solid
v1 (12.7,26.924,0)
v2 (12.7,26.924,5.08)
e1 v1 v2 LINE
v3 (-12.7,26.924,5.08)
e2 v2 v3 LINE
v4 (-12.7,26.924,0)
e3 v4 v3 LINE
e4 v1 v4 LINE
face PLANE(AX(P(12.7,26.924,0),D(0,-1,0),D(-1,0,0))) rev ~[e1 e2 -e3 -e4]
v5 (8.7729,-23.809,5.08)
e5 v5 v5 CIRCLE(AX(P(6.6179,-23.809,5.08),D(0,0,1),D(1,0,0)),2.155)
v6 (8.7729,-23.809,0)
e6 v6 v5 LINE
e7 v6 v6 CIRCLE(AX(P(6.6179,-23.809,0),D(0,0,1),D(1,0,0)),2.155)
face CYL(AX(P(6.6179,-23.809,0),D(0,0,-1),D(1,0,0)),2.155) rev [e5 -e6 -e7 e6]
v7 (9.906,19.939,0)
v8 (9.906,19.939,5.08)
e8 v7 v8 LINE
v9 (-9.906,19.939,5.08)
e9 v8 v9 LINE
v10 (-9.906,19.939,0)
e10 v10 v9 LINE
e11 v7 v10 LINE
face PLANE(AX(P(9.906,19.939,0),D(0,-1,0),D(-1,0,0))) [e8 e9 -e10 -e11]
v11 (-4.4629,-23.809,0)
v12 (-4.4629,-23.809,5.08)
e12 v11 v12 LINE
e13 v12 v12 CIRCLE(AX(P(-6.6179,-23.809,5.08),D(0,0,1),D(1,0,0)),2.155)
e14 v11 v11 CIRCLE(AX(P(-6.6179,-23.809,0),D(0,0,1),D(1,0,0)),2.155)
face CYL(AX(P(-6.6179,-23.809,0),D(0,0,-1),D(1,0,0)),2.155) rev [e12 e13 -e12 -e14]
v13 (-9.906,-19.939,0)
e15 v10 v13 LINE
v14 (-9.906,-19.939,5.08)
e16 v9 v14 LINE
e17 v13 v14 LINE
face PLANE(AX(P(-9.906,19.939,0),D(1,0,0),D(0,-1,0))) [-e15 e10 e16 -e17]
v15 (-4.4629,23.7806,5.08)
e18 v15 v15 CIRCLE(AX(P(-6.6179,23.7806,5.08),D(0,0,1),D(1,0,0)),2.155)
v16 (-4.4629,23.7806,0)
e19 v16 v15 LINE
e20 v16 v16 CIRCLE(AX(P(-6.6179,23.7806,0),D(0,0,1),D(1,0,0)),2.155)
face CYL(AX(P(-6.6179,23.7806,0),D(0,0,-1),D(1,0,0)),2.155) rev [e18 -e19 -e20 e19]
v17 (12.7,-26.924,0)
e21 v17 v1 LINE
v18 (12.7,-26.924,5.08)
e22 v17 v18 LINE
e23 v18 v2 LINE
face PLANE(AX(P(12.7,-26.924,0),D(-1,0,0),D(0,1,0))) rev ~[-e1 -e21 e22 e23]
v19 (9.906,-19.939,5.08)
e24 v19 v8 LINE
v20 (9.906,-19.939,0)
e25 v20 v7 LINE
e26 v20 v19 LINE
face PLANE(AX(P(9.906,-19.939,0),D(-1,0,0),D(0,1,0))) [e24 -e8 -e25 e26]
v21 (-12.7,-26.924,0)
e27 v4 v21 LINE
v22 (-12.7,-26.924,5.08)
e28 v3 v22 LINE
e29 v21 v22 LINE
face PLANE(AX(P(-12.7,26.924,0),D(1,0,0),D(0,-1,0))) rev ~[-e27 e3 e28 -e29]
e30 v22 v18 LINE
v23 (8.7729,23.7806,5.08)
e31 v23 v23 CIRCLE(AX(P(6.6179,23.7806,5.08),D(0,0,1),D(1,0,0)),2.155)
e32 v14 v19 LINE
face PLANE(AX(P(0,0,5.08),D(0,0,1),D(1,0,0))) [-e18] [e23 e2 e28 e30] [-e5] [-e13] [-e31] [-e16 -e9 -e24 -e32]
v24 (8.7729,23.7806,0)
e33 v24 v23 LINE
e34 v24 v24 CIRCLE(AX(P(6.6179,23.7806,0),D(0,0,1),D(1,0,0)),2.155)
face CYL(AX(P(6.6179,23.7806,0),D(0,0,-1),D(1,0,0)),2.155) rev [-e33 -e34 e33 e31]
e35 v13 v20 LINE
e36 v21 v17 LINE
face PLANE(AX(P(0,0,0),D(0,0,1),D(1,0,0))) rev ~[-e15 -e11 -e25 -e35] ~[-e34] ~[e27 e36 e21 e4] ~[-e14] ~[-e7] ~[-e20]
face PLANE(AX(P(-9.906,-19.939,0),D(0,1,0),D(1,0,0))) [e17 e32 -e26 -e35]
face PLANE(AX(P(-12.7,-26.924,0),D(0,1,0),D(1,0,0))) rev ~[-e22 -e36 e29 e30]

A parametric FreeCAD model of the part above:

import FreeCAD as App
import Part
import Sketcher

V = App.Vector
Q = App.Units.Quantity

doc = App.newDocument("Part")
body = doc.addObject("PartDesign::Body", "Body")

sketch1 = body.newObject("Sketcher::SketchObject", "Sketch")
sketch1.AttachmentSupport = (doc.getObject("XY_Plane"), [""])
sketch1.MapMode = "FlatFace"
sketch1.addGeometry(Part.LineSegment(V(-12.7, 26.924, 0), V(-12.7, -26.924, 0)), False)
sketch1.addGeometry(Part.LineSegment(V(-12.7, -26.924, 0), V(12.7, -26.924, 0)), False)
sketch1.addGeometry(Part.LineSegment(V(12.7, -26.924, 0), V(12.7, 26.924, 0)), False)
sketch1.addGeometry(Part.LineSegment(V(12.7, 26.924, 0), V(-12.7, 26.924, 0)), False)
sketch1.addGeometry(Part.Circle(V(-6.6179, -23.809, 0), V(0, 0, 1), 2.155), False)
sketch1.addGeometry(Part.Circle(V(6.6179, -23.809, 0), V(0, 0, 1), 2.155), False)
sketch1.addGeometry(Part.LineSegment(V(9.906, -19.939, 0), V(-9.906, -19.939, 0)), False)
sketch1.addGeometry(Part.LineSegment(V(-9.906, -19.939, 0), V(-9.906, 19.939, 0)), False)
sketch1.addGeometry(Part.LineSegment(V(-9.906, 19.939, 0), V(9.906, 19.939, 0)), False)
sketch1.addGeometry(Part.LineSegment(V(9.906, 19.939, 0), V(9.906, -19.939, 0)), False)
sketch1.addGeometry(Part.Circle(V(-6.6179, 23.7806, 0), V(0, 0, 1), 2.155), False)
sketch1.addGeometry(Part.Circle(V(6.6179, 23.7806, 0), V(0, 0, 1), 2.155), False)
sketch1.addConstraint(Sketcher.Constraint("Coincident", 0, 2, 1, 1))
sketch1.addConstraint(Sketcher.Constraint("Coincident", 1, 2, 2, 1))
sketch1.addConstraint(Sketcher.Constraint("Coincident", 2, 2, 3, 1))
sketch1.addConstraint(Sketcher.Constraint("Coincident", 3, 2, 0, 1))
sketch1.addConstraint(Sketcher.Constraint("Coincident", 6, 2, 7, 1))
sketch1.addConstraint(Sketcher.Constraint("Coincident", 7, 2, 8, 1))
sketch1.addConstraint(Sketcher.Constraint("Coincident", 8, 2, 9, 1))
sketch1.addConstraint(Sketcher.Constraint("Coincident", 9, 2, 6, 1))
sketch1.addConstraint(Sketcher.Constraint("Vertical", 0))
sketch1.addConstraint(Sketcher.Constraint("Horizontal", 1))
sketch1.addConstraint(Sketcher.Constraint("Vertical", 2))
sketch1.addConstraint(Sketcher.Constraint("Horizontal", 3))
sketch1.addConstraint(Sketcher.Constraint("Horizontal", 6))
sketch1.addConstraint(Sketcher.Constraint("Vertical", 7))
sketch1.addConstraint(Sketcher.Constraint("Horizontal", 8))
sketch1.addConstraint(Sketcher.Constraint("Vertical", 9))
sketch1.addConstraint(Sketcher.Constraint("Equal", 4, 5))
sketch1.addConstraint(Sketcher.Constraint("Equal", 5, 10))
sketch1.addConstraint(Sketcher.Constraint("Equal", 10, 11))
sketch1.addConstraint(Sketcher.Constraint("Symmetric", 0, 2, 2, 2, -1, 1))
sketch1.addConstraint(Sketcher.Constraint("Symmetric", 6, 2, 8, 2, -1, 1))
sketch1.addConstraint(Sketcher.Constraint("Symmetric", 4, 3, 5, 3, -2))
sketch1.addConstraint(Sketcher.Constraint("Symmetric", 10, 3, 11, 3, -2))
sketch1.addConstraint(Sketcher.Constraint("Vertical", 4, 3, 10, 3))
sketch1.addConstraint(Sketcher.Constraint("DistanceX", 1, 1, 1, 2, Q("1 in")))
sketch1.addConstraint(Sketcher.Constraint("DistanceY", 0, 2, 0, 1, Q("2.12 in")))
sketch1.addConstraint(Sketcher.Constraint("DistanceY", 7, 1, 7, 2, Q("1.57 in")))
sketch1.addConstraint(Sketcher.Constraint("DistanceX", 6, 2, 6, 1, Q("0.78 in")))
sketch1.addConstraint(Sketcher.Constraint("Diameter", 4, Q("4.31 mm")))
sketch1.addConstraint(Sketcher.Constraint("DistanceX", 4, 3, 5, 3, Q("0.5211 in")))
sketch1.addConstraint(Sketcher.Constraint("DistanceY", 4, 3, 10, 3, Q("1.8736 in")))
sketch1.addConstraint(Sketcher.Constraint("DistanceY", 4, 3, -1, 1, Q("23.809 mm")))
pad1 = body.newObject("PartDesign::Pad", "Pad")
pad1.Profile = sketch1
pad1.Length = Q("0.2 in")

doc.recompute()
